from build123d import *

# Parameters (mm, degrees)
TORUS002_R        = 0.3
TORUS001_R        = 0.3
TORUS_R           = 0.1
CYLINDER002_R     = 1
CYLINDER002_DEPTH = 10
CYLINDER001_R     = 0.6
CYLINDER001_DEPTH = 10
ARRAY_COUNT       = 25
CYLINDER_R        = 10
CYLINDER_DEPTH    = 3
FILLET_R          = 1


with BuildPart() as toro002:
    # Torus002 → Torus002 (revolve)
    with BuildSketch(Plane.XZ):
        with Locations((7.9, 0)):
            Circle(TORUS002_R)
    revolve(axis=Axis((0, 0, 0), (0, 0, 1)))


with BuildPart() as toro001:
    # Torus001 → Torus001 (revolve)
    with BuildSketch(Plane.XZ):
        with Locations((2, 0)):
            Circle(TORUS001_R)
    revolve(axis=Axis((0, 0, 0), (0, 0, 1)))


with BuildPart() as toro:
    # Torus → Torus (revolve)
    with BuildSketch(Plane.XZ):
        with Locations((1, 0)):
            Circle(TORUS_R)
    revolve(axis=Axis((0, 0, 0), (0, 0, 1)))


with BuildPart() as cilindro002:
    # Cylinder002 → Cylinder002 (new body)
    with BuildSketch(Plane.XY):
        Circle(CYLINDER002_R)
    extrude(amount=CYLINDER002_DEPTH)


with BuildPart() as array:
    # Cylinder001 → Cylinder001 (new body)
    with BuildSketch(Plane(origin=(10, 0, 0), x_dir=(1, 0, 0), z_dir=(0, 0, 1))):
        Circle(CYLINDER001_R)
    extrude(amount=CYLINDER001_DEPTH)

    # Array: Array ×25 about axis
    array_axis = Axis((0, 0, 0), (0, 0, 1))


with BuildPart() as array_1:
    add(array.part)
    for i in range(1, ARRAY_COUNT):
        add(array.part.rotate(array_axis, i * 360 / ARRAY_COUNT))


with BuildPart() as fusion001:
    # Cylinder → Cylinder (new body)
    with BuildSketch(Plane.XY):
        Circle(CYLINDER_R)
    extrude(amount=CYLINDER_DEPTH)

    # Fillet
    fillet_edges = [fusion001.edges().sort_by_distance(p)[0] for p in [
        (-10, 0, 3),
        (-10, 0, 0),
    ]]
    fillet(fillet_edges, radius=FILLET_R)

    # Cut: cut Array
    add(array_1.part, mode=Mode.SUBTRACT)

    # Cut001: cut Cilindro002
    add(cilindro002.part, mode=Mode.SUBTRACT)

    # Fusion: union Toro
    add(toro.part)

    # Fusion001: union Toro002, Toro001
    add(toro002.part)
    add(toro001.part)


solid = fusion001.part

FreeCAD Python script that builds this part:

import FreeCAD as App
import Part
import Sketcher
from FreeCAD import Vector
Q = App.Units.Quantity


def edges_at(feature, points):
    """Names of the edges that pass closest to the given points."""
    edges = feature.Shape.Edges
    near = lambda p: min(range(len(edges)), key=lambda i: edges[i].distToShape(Part.Vertex(*p))[0])
    return sorted({f"Edge{near(p) + 1}" for p in points})

doc = App.newDocument("Part")
body = doc.addObject("PartDesign::Body", "Body")

# Sketch on XZ plane
sketch1 = body.newObject("Sketcher::SketchObject", "Sketch")
sketch1.AttachmentSupport = (doc.getObject("XZ_Plane"), [""])
sketch1.MapMode = "FlatFace"
sketch1.addGeometry(Part.Circle(Vector(7.9, 0, 0), Vector(0, 0, 1), 0.3), False)
sketch1.addConstraint([
    Sketcher.Constraint("PointOnObject", 0, 3, -1),
    Sketcher.Constraint("Diameter", 0, Q("0.6 mm")),
    Sketcher.Constraint("DistanceX", -1, 1, 0, 3, Q("7.9 mm")),
])
revolution = body.newObject("PartDesign::Revolution", "Revolution")
revolution.Profile = sketch1
revolution.ReferenceAxis = (sketch1, ["V_Axis"])
revolution.Angle = 360
body2 = doc.addObject("PartDesign::Body", "Body001")

# Sketch on XZ plane
sketch2 = body2.newObject("Sketcher::SketchObject", "Sketch001")
sketch2.AttachmentSupport = (doc.getObject("XZ_Plane001"), [""])
sketch2.MapMode = "FlatFace"
sketch2.addGeometry(Part.Circle(Vector(2, 0, 0), Vector(0, 0, 1), 0.3), False)
sketch2.addConstraint([
    Sketcher.Constraint("PointOnObject", 0, 3, -1),
    Sketcher.Constraint("Diameter", 0, Q("0.6 mm")),
    Sketcher.Constraint("DistanceX", -1, 1, 0, 3, Q("2 mm")),
])
revolution2 = body2.newObject("PartDesign::Revolution", "Revolution001")
revolution2.Profile = sketch2
revolution2.ReferenceAxis = (sketch2, ["V_Axis"])
revolution2.Angle = 360
body3 = doc.addObject("PartDesign::Body", "Body002")

# Sketch on XZ plane
sketch3 = body3.newObject("Sketcher::SketchObject", "Sketch002")
sketch3.AttachmentSupport = (doc.getObject("XZ_Plane002"), [""])
sketch3.MapMode = "FlatFace"
sketch3.addGeometry(Part.Circle(Vector(1, 0, 0), Vector(0, 0, 1), 0.1), False)
sketch3.addConstraint([
    Sketcher.Constraint("PointOnObject", 0, 3, -1),
    Sketcher.Constraint("Diameter", 0, Q("0.2 mm")),
    Sketcher.Constraint("DistanceX", -1, 1, 0, 3, Q("1 mm")),
])
revolution3 = body3.newObject("PartDesign::Revolution", "Revolution002")
revolution3.Profile = sketch3
revolution3.ReferenceAxis = (sketch3, ["V_Axis"])
revolution3.Angle = 360
body4 = doc.addObject("PartDesign::Body", "Body003")

# Sketch on XY plane
sketch4 = body4.newObject("Sketcher::SketchObject", "Sketch003")
sketch4.AttachmentSupport = (doc.getObject("XY_Plane003"), [""])
sketch4.MapMode = "FlatFace"
sketch4.addGeometry(Part.Circle(Vector(0, 0, 0), Vector(0, 0, 1), 1), False)
sketch4.addConstraint([
    Sketcher.Constraint("Coincident", 0, 3, -1, 1),
    Sketcher.Constraint("Diameter", 0, Q("2 mm")),
])
pad1 = body4.newObject("PartDesign::Pad", "Pad")
pad1.Profile = sketch4
pad1.Length = 10
body5 = doc.addObject("PartDesign::Body", "Body004")

# Sketch on XY plane
sketch5 = body5.newObject("Sketcher::SketchObject", "Sketch004")
sketch5.AttachmentSupport = (doc.getObject("XY_Plane004"), [""])
sketch5.MapMode = "FlatFace"
sketch5.addGeometry(Part.Circle(Vector(10, 0, 0), Vector(0, 0, 1), 0.6), False)
sketch5.addConstraint([
    Sketcher.Constraint("PointOnObject", 0, 3, -1),
    Sketcher.Constraint("Diameter", 0, Q("1.2 mm")),
    Sketcher.Constraint("DistanceX", -1, 1, 0, 3, Q("10 mm")),
])
pad2 = body5.newObject("PartDesign::Pad", "Pad001")
pad2.Profile = sketch5
pad2.Length = 10
body6 = doc.addObject("PartDesign::Body", "Body005")
body6.AllowCompound = True
doc.recompute()

body6.BaseFeature = body5
doc.recompute()

body7 = doc.addObject("PartDesign::Body", "Body006")
body7.BaseFeature = body5
body7.Placement = App.Placement(Vector(0, 0, 0), App.Rotation(Vector(0, 0, 1), 14.4))
boolean = body6.newObject("PartDesign::Boolean", "Boolean")
boolean.Type = "Fuse"
boolean.addObjects([body7])
doc.recompute()

body8 = doc.addObject("PartDesign::Body", "Body007")
body8.BaseFeature = body5
body8.Placement = App.Placement(Vector(0, 0, 0), App.Rotation(Vector(0, 0, 1), 28.8))
boolean2 = body6.newObject("PartDesign::Boolean", "Boolean001")
boolean2.Type = "Fuse"
boolean2.addObjects([body8])
doc.recompute()

body9 = doc.addObject("PartDesign::Body", "Body008")
body9.BaseFeature = body5
body9.Placement = App.Placement(Vector(0, 0, 0), App.Rotation(Vector(0, 0, 1), 43.2))
boolean3 = body6.newObject("PartDesign::Boolean", "Boolean002")
boolean3.Type = "Fuse"
boolean3.addObjects([body9])
doc.recompute()

body10 = doc.addObject("PartDesign::Body", "Body009")
body10.BaseFeature = body5
body10.Placement = App.Placement(Vector(0, 0, 0), App.Rotation(Vector(0, 0, 1), 57.6))
boolean4 = body6.newObject("PartDesign::Boolean", "Boolean003")
boolean4.Type = "Fuse"
boolean4.addObjects([body10])
doc.recompute()

body11 = doc.addObject("PartDesign::Body", "Body010")
body11.BaseFeature = body5
body11.Placement = App.Placement(Vector(0, 0, 0), App.Rotation(Vector(0, 0, 1), 72))
boolean5 = body6.newObject("PartDesign::Boolean", "Boolean004")
boolean5.Type = "Fuse"
boolean5.addObjects([body11])
doc.recompute()

body12 = doc.addObject("PartDesign::Body", "Body011")
body12.BaseFeature = body5
body12.Placement = App.Placement(Vector(0, 0, 0), App.Rotation(Vector(0, 0, 1), 86.4))
boolean6 = body6.newObject("PartDesign::Boolean", "Boolean005")
boolean6.Type = "Fuse"
boolean6.addObjects([body12])
doc.recompute()

body13 = doc.addObject("PartDesign::Body", "Body012")
body13.BaseFeature = body5
body13.Placement = App.Placement(Vector(0, 0, 0), App.Rotation(Vector(0, 0, 1), 100.8))
boolean7 = body6.newObject("PartDesign::Boolean", "Boolean006")
boolean7.Type = "Fuse"
boolean7.addObjects([body13])
doc.recompute()

body14 = doc.addObject("PartDesign::Body", "Body013")
body14.BaseFeature = body5
body14.Placement = App.Placement(Vector(0, 0, 0), App.Rotation(Vector(0, 0, 1), 115.2))
boolean8 = body6.newObject("PartDesign::Boolean", "Boolean007")
boolean8.Type = "Fuse"
boolean8.addObjects([body14])
doc.recompute()

body15 = doc.addObject("PartDesign::Body", "Body014")
body15.BaseFeature = body5
body15.Placement = App.Placement(Vector(0, 0, 0), App.Rotation(Vector(0, 0, 1), 129.6))
boolean9 = body6.newObject("PartDesign::Boolean", "Boolean008")
boolean9.Type = "Fuse"
boolean9.addObjects([body15])
doc.recompute()

body16 = doc.addObject("PartDesign::Body", "Body015")
body16.BaseFeature = body5
body16.Placement = App.Placement(Vector(0, 0, 0), App.Rotation(Vector(0, 0, 1), 144))
boolean10 = body6.newObject("PartDesign::Boolean", "Boolean009")
boolean10.Type = "Fuse"
boolean10.addObjects([body16])
doc.recompute()

body17 = doc.addObject("PartDesign::Body", "Body016")
body17.BaseFeature = body5
body17.Placement = App.Placement(Vector(0, 0, 0), App.Rotation(Vector(0, 0, 1), 158.4))
boolean11 = body6.newObject("PartDesign::Boolean", "Boolean010")
boolean11.Type = "Fuse"
boolean11.addObjects([body17])
doc.recompute()

body18 = doc.addObject("PartDesign::Body", "Body017")
body18.BaseFeature = body5
body18.Placement = App.Placement(Vector(0, 0, 0), App.Rotation(Vector(0, 0, 1), 172.8))
boolean12 = body6.newObject("PartDesign::Boolean", "Boolean011")
boolean12.Type = "Fuse"
boolean12.addObjects([body18])
doc.recompute()

body19 = doc.addObject("PartDesign::Body", "Body018")
body19.BaseFeature = body5
body19.Placement = App.Placement(Vector(0, 0, 0), App.Rotation(Vector(0, 0, 1), 187.2))
boolean13 = body6.newObject("PartDesign::Boolean", "Boolean012")
boolean13.Type = "Fuse"
boolean13.addObjects([body19])
doc.recompute()

body20 = doc.addObject("PartDesign::Body", "Body019")
body20.BaseFeature = body5
body20.Placement = App.Placement(Vector(0, 0, 0), App.Rotation(Vector(0, 0, 1), 201.6))
boolean14 = body6.newObject("PartDesign::Boolean", "Boolean013")
boolean14.Type = "Fuse"
boolean14.addObjects([body20])
doc.recompute()

body21 = doc.addObject("PartDesign::Body", "Body020")
body21.BaseFeature = body5
body21.Placement = App.Placement(Vector(0, 0, 0), App.Rotation(Vector(0, 0, 1), 216))
boolean15 = body6.newObject("PartDesign::Boolean", "Boolean014")
boolean15.Type = "Fuse"
boolean15.addObjects([body21])
doc.recompute()

body22 = doc.addObject("PartDesign::Body", "Body021")
body22.BaseFeature = body5
body22.Placement = App.Placement(Vector(0, 0, 0), App.Rotation(Vector(0, 0, 1), 230.4))
boolean16 = body6.newObject("PartDesign::Boolean", "Boolean015")
boolean16.Type = "Fuse"
boolean16.addObjects([body22])
doc.recompute()

body23 = doc.addObject("PartDesign::Body", "Body022")
body23.BaseFeature = body5
body23.Placement = App.Placement(Vector(0, 0, 0), App.Rotation(Vector(0, 0, 1), 244.8))
boolean17 = body6.newObject("PartDesign::Boolean", "Boolean016")
boolean17.Type = "Fuse"
boolean17.addObjects([body23])
doc.recompute()

body24 = doc.addObject("PartDesign::Body", "Body023")
body24.BaseFeature = body5
body24.Placement = App.Placement(Vector(0, 0, 0), App.Rotation(Vector(0, 0, 1), 259.2))
boolean18 = body6.newObject("PartDesign::Boolean", "Boolean017")
boolean18.Type = "Fuse"
boolean18.addObjects([body24])
doc.recompute()

body25 = doc.addObject("PartDesign::Body", "Body024")
body25.BaseFeature = body5
body25.Placement = App.Placement(Vector(0, 0, 0), App.Rotation(Vector(0, 0, 1), 273.6))
boolean19 = body6.newObject("PartDesign::Boolean", "Boolean018")
boolean19.Type = "Fuse"
boolean19.addObjects([body25])
doc.recompute()

body26 = doc.addObject("PartDesign::Body", "Body025")
body26.BaseFeature = body5
body26.Placement = App.Placement(Vector(0, 0, 0), App.Rotation(Vector(0, 0, 1), 288))
boolean20 = body6.newObject("PartDesign::Boolean", "Boolean019")
boolean20.Type = "Fuse"
boolean20.addObjects([body26])
doc.recompute()

body27 = doc.addObject("PartDesign::Body", "Body026")
body27.BaseFeature = body5
body27.Placement = App.Placement(Vector(0, 0, 0), App.Rotation(Vector(0, 0, 1), 302.4))
boolean21 = body6.newObject("PartDesign::Boolean", "Boolean020")
boolean21.Type = "Fuse"
boolean21.addObjects([body27])
doc.recompute()

body28 = doc.addObject("PartDesign::Body", "Body027")
body28.BaseFeature = body5
body28.Placement = App.Placement(Vector(0, 0, 0), App.Rotation(Vector(0, 0, 1), 316.8))
boolean22 = body6.newObject("PartDesign::Boolean", "Boolean021")
boolean22.Type = "Fuse"
boolean22.addObjects([body28])
doc.recompute()

body29 = doc.addObject("PartDesign::Body", "Body028")
body29.BaseFeature = body5
body29.Placement = App.Placement(Vector(0, 0, 0), App.Rotation(Vector(0, 0, 1), 331.2))
boolean23 = body6.newObject("PartDesign::Boolean", "Boolean022")
boolean23.Type = "Fuse"
boolean23.addObjects([body29])
doc.recompute()

body5.Placement = App.Placement(Vector(0, 0, 0), App.Rotation(Vector(0, 0, 1), 345.6))
boolean24 = body6.newObject("PartDesign::Boolean", "Boolean023")
boolean24.Type = "Fuse"
boolean24.addObjects([body5])
body30 = doc.addObject("PartDesign::Body", "Body029")

# Sketch on XY plane
sketch6 = body30.newObject("Sketcher::SketchObject", "Sketch005")
sketch6.AttachmentSupport = (doc.getObject("XY_Plane029"), [""])
sketch6.MapMode = "FlatFace"
sketch6.addGeometry(Part.Circle(Vector(0, 0, 0), Vector(0, 0, 1), 10), False)
sketch6.addConstraint([
    Sketcher.Constraint("Coincident", 0, 3, -1, 1),
    Sketcher.Constraint("Diameter", 0, Q("20 mm")),
])
pad3 = body30.newObject("PartDesign::Pad", "Pad002")
pad3.Profile = sketch6
pad3.Length = 3
doc.recompute()

fillet = body30.newObject("PartDesign::Fillet", "Fillet")
fillet.Base = (pad3, edges_at(pad3, [(-10, 0, 3), (-10, 0, 0)]))
fillet.Radius = 1
doc.recompute()

boolean25 = body30.newObject("PartDesign::Boolean", "Boolean024")
boolean25.Type = "Cut"
boolean25.addObjects([body6])
doc.recompute()

boolean26 = body30.newObject("PartDesign::Boolean", "Boolean025")
boolean26.Type = "Cut"
boolean26.addObjects([body4])
doc.recompute()

boolean27 = body30.newObject("PartDesign::Boolean", "Boolean026")
boolean27.Type = "Fuse"
boolean27.addObjects([body3])
doc.recompute()

boolean28 = body30.newObject("PartDesign::Boolean", "Boolean027")
boolean28.Type = "Fuse"
boolean28.addObjects([body])
doc.recompute()

boolean29 = body30.newObject("PartDesign::Boolean", "Boolean028")
boolean29.Type = "Fuse"
boolean29.addObjects([body2])

doc.recompute()
